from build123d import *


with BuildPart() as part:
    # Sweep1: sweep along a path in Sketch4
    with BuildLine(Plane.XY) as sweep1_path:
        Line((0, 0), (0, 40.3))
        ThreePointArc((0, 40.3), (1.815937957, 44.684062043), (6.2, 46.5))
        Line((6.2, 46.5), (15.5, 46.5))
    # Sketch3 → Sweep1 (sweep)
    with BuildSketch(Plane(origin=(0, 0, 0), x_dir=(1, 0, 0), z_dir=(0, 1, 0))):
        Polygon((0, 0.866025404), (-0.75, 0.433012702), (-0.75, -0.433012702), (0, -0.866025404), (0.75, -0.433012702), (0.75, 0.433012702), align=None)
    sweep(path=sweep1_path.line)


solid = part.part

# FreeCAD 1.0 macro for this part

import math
import FreeCAD as App
import Part
import Sketcher
Q = App.Units.Quantity


def add_polygon(sketch, points):
    """Adds a closed chain of lines whose ends are joined by coincident constraints."""
    first, n = sketch.GeometryCount, len(points)
    for a, b in zip(points, points[1:] + points[:1]):
        sketch.addGeometry(Part.LineSegment(App.Vector(*a, 0), App.Vector(*b, 0)), False)
    for i in range(n):
        sketch.addConstraint(Sketcher.Constraint("Coincident", first + i, 2, first + (i + 1) % n, 1))

doc = App.newDocument("Part")
body = doc.addObject("PartDesign::Body", "Body")

# Sketch on XZ plane
sketch1 = doc.addObject("Sketcher::SketchObject", "Sketch")
body.addObject(sketch1)
sketch1.AttachmentSupport = (doc.XZ_Plane, [""])
sketch1.MapMode = "FlatFace"
add_polygon(sketch1, [(0, -0.866025), (-0.75, -0.433013), (-0.75, 0.433013), (0, 0.866025), (0.75, 0.433013), (0.75, -0.433013)])  # lines 0-5
sketch1.addConstraint([
    Sketcher.Constraint("Vertical", 1),
    Sketcher.Constraint("Vertical", 4),
    Sketcher.Constraint("Symmetric", 0, 2, 3, 2, -1, 1),
    Sketcher.Constraint("Symmetric", 2, 2, 5, 2, -1, 1),
    Sketcher.Constraint("PointOnObject", 2, 2, -2),
    Sketcher.Constraint("Parallel", 2, 5),
    Sketcher.Constraint("Horizontal", 1, 2, 3, 2),
    Sketcher.Constraint("Angle", 0, Q("150 deg")),
    Sketcher.Constraint("DistanceX", 1, 2, 3, 2, Q("1.5 mm")),
    Sketcher.Constraint("DistanceY", 1, 1, 1, 2, Q("0.866025 mm")),
])

# Sketch on XY plane
sketch2 = doc.addObject("Sketcher::SketchObject", "Sketch001")
body.addObject(sketch2)
sketch2.AttachmentSupport = (doc.XY_Plane, [""])
sketch2.MapMode = "FlatFace"
sketch2.addGeometry([
    Part.LineSegment(App.Vector(0, 0, 0), App.Vector(0, 40.3, 0)),
    Part.ArcOfCircle(Part.Circle(App.Vector(6.2, 40.3, 0), App.Vector(0, 0, 1), 6.2), math.radians(90), math.radians(180)),
    Part.LineSegment(App.Vector(6.2, 46.5, 0), App.Vector(15.5, 46.5, 0)),
], False)
sketch2.addConstraint([
    Sketcher.Constraint("Tangent", 0, 2, 1, 2),
    Sketcher.Constraint("Tangent", 1, 1, 2, 1),
    Sketcher.Constraint("Vertical", 0),
    Sketcher.Constraint("Horizontal", 2),
    Sketcher.Constraint("Coincident", 0, 1, -1, 1),
    Sketcher.Constraint("Radius", 1, Q("6.2 mm")),
    Sketcher.Constraint("DistanceX", 2, 1, 2, 2, Q("9.3 mm")),
    Sketcher.Constraint("DistanceY", 0, 1, 0, 2, Q("40.3 mm")),
])
doc.recompute()

additivepipe = doc.addObject("PartDesign::AdditivePipe", "AdditivePipe")
body.addObject(additivepipe)
additivepipe.Profile = sketch1
additivepipe.Spine = (sketch2, ["Edge1", "Edge2", "Edge3"])

doc.recompute()
